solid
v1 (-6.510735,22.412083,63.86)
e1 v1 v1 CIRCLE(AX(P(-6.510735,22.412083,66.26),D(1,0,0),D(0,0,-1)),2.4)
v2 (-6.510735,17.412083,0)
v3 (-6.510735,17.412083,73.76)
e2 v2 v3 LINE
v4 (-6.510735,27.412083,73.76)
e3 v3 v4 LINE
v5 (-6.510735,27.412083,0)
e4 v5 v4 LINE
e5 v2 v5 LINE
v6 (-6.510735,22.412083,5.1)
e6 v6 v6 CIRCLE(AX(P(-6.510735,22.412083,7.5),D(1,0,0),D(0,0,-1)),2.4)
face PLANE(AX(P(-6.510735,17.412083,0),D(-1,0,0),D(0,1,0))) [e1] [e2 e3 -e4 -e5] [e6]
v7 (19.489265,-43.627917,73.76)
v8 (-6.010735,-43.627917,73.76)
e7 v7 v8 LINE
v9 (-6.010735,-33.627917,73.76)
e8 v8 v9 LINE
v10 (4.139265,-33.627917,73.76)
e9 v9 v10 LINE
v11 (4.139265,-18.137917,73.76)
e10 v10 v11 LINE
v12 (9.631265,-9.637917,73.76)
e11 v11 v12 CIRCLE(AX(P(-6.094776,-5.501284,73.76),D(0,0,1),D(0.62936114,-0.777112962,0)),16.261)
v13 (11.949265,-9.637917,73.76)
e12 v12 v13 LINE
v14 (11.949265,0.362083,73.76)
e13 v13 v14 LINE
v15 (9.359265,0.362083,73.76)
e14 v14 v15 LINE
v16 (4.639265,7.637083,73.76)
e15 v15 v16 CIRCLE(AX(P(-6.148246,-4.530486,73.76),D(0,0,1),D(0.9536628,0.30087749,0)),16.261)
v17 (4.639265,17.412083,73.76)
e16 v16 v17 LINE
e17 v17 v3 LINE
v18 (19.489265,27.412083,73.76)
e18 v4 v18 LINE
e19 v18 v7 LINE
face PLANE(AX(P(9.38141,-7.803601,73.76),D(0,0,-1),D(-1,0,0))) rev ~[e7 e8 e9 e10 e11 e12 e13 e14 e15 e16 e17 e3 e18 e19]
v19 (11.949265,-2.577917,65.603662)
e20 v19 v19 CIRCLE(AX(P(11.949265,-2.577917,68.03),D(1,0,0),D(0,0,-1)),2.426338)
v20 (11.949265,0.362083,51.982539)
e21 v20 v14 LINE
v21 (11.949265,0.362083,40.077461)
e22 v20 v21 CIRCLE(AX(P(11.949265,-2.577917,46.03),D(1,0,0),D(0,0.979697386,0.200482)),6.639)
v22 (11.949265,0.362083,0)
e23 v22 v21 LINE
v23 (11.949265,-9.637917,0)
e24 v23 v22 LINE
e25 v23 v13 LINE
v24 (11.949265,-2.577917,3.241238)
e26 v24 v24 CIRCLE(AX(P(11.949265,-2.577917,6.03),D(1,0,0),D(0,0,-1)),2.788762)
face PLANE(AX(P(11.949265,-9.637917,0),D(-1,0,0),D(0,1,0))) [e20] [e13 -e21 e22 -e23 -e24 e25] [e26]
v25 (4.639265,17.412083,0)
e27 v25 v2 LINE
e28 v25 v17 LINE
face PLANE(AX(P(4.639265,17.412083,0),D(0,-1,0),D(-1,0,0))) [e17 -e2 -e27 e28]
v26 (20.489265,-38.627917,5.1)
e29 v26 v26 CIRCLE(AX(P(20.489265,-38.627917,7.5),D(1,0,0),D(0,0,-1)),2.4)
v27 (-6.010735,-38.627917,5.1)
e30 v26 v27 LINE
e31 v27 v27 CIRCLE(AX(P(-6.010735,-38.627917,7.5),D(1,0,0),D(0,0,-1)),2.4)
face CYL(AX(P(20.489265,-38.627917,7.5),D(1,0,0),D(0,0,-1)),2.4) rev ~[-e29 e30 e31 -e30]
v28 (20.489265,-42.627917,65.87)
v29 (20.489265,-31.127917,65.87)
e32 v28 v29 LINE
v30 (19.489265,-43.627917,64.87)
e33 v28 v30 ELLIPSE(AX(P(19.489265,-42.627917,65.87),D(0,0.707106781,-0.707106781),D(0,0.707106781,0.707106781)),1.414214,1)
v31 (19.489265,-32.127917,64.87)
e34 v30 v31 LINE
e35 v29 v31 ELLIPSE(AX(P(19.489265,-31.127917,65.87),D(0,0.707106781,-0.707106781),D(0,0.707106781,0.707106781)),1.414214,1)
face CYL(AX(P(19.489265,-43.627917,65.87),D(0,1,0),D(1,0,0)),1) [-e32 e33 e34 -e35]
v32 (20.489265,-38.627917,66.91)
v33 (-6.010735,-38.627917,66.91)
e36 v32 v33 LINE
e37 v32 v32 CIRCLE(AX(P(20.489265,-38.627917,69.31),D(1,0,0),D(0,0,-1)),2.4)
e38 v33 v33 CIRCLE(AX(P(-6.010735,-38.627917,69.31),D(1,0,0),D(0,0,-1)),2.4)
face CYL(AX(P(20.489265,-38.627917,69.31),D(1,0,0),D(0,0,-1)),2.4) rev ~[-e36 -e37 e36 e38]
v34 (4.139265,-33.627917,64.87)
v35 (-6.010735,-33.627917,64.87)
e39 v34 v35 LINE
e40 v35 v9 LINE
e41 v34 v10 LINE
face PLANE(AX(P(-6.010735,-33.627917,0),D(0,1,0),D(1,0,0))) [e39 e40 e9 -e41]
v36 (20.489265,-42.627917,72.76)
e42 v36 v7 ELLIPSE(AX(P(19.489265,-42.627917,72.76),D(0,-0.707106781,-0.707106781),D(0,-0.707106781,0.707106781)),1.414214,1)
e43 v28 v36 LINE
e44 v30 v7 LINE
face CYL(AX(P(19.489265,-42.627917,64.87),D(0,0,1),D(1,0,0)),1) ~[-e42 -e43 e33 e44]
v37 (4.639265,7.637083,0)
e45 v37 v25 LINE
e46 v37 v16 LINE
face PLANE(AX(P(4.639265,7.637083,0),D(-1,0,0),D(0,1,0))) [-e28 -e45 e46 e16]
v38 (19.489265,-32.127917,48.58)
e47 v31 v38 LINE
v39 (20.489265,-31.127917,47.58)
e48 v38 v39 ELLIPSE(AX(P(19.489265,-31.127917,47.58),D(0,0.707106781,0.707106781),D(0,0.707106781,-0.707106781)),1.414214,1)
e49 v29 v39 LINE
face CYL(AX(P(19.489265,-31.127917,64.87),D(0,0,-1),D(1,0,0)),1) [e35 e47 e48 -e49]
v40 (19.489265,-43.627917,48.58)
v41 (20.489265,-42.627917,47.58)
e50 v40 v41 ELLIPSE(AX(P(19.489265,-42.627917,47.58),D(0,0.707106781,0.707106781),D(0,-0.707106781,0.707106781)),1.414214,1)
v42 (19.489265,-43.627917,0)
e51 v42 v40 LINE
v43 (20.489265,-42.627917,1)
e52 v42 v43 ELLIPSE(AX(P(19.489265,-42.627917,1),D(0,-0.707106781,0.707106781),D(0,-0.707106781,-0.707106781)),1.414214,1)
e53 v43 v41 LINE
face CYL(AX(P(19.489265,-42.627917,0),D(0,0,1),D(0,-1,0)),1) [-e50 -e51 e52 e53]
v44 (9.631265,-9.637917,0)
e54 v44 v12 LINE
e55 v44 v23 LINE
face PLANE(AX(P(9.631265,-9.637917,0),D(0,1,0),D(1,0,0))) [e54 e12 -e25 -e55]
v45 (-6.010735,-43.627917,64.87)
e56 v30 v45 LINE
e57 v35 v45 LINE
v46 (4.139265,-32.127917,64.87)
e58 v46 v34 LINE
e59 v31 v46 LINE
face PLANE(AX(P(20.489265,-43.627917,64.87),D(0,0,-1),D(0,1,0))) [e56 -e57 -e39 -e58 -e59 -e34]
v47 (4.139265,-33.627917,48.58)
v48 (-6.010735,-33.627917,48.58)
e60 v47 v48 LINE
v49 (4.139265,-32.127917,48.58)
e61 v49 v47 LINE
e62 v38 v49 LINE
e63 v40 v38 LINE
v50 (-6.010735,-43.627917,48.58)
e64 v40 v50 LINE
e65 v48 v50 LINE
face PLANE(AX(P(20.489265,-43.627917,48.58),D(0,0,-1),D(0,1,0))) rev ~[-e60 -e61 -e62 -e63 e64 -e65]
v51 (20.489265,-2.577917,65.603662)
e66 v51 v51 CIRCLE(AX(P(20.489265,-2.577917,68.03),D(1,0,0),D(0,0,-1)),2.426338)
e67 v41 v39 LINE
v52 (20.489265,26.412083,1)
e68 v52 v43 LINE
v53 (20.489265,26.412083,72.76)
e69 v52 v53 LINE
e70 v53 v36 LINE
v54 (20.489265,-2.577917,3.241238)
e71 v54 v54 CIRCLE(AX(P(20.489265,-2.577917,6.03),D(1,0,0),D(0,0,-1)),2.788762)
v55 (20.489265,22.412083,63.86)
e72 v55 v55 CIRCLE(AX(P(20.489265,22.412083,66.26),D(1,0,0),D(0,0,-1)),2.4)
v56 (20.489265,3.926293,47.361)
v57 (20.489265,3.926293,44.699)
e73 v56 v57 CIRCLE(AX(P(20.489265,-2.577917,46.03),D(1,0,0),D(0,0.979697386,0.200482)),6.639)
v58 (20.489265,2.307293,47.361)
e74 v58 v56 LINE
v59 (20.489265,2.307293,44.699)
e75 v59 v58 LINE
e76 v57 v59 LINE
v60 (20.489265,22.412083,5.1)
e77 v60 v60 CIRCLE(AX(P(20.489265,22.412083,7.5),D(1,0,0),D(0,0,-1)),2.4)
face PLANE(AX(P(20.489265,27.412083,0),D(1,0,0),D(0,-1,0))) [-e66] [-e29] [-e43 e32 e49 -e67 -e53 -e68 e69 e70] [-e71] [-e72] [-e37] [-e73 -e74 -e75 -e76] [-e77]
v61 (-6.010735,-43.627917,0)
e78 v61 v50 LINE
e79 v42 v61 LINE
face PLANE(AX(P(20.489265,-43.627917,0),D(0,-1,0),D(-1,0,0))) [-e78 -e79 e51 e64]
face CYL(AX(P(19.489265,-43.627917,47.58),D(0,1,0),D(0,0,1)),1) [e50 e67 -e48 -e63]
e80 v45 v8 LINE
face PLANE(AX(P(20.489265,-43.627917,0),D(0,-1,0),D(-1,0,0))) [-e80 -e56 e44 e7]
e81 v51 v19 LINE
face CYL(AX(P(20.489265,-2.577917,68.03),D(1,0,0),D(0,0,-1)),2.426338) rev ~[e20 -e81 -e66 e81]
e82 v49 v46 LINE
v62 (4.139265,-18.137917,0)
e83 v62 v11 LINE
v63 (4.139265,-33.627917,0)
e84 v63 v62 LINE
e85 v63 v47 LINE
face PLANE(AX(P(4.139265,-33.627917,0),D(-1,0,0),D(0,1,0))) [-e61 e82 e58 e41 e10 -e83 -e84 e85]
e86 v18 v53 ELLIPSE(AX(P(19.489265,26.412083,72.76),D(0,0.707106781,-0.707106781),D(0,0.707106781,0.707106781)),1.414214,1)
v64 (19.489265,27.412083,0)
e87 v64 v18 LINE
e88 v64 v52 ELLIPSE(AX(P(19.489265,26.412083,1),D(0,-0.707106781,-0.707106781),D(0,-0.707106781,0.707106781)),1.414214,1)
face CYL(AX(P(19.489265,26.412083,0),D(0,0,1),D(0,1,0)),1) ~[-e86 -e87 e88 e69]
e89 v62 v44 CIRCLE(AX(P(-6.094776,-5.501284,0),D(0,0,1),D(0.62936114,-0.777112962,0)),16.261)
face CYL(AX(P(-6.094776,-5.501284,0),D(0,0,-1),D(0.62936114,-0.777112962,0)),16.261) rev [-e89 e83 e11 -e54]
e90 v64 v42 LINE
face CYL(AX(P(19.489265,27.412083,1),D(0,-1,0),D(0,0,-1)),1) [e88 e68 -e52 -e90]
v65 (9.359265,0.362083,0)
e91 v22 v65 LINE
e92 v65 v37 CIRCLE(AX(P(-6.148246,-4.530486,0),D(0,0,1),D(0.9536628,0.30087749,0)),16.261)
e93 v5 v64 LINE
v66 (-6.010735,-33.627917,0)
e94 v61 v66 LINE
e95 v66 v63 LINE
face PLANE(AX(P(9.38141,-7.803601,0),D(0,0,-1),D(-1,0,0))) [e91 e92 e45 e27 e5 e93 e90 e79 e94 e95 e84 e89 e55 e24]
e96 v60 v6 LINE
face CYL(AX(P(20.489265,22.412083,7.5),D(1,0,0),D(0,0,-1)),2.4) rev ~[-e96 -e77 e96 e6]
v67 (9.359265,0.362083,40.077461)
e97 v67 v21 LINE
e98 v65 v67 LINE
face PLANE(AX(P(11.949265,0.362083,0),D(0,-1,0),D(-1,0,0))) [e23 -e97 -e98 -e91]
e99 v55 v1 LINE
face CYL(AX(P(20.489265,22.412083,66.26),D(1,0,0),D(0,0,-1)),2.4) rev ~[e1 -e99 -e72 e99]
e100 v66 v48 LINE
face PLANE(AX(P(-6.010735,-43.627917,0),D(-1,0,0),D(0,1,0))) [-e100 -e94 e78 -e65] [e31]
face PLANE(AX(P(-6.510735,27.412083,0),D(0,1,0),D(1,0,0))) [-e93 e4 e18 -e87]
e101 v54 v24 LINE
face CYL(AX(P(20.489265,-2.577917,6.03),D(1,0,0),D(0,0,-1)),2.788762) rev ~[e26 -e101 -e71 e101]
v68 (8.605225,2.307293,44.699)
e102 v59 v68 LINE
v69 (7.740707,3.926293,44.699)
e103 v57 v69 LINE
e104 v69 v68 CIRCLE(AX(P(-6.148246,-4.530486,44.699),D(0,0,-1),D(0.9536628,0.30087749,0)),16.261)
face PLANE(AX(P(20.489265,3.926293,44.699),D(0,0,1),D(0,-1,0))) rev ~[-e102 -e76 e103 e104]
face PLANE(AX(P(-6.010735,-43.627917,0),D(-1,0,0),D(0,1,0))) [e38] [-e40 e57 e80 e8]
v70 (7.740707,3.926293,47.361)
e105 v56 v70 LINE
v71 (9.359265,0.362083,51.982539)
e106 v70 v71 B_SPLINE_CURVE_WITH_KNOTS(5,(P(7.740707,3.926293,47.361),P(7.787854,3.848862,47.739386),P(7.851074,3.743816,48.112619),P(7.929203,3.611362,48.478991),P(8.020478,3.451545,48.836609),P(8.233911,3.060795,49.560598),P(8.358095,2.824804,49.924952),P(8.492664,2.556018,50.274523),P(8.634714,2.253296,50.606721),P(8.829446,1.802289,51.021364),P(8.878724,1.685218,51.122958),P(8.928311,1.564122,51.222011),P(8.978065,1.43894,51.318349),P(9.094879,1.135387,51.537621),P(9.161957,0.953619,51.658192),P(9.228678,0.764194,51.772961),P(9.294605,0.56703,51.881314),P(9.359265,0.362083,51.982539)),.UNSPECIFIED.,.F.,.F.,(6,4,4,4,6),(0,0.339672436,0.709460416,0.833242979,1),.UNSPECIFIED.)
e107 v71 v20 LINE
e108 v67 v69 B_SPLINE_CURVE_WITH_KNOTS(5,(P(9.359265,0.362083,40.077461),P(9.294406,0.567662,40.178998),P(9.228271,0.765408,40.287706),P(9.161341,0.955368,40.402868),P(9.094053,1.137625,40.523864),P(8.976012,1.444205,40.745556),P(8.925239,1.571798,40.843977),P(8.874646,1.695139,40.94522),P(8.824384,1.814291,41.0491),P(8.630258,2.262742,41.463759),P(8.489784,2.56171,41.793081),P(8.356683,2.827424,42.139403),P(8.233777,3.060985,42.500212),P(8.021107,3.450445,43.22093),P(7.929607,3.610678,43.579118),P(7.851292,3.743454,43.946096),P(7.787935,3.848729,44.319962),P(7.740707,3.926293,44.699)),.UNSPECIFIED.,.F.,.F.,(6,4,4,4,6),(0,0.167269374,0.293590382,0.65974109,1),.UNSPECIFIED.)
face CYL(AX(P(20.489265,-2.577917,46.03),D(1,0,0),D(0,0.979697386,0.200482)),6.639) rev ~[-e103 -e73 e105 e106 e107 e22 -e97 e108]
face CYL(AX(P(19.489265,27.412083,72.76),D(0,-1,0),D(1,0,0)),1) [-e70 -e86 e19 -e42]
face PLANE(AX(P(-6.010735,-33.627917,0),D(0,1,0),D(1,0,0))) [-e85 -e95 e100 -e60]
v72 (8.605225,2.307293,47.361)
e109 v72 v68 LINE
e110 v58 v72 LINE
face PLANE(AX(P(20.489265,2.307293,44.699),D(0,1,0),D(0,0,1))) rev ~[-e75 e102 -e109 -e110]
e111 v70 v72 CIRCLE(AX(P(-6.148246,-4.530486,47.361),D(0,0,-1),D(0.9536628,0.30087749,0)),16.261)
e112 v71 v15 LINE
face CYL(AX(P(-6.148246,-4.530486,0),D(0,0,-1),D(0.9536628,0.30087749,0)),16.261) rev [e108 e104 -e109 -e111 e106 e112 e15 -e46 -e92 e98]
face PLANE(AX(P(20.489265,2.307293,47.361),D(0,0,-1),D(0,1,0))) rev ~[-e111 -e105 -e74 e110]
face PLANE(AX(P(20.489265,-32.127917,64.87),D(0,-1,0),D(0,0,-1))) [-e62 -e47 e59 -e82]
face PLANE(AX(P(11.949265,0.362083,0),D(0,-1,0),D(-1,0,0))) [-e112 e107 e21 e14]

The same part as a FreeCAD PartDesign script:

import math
import FreeCAD as App
import Part
import Sketcher

V = App.Vector
Q = App.Units.Quantity


def edges_at(feature, points):
    """Names of the edges that pass closest to the given points."""
    edges = feature.Shape.Edges
    near = lambda p: min(range(len(edges)), key=lambda i: edges[i].distToShape(Part.Vertex(*p))[0])
    return sorted({f"Edge{near(p) + 1}" for p in points})


def add_polygon(sketch, points):
    """Adds a closed chain of lines whose ends are joined by coincident constraints."""
    first, n = sketch.GeometryCount, len(points)
    for a, b in zip(points, points[1:] + points[:1]):
        sketch.addGeometry(Part.LineSegment(App.Vector(*a, 0), App.Vector(*b, 0)), False)
    for i in range(n):
        sketch.addConstraint(Sketcher.Constraint("Coincident", first + i, 2, first + (i + 1) % n, 1))

doc = App.newDocument("Part")
params = doc.addObject("Spreadsheet::Sheet", "Params")
for row, (alias, value) in enumerate([
    ("sketch1_width", "27 mm"),
    ("sketch1_height", "10 mm"),
    ("sketch1_width2", "26.5 mm"),
    ("sketch1_width3", "11.15 mm"),
    ("sketch1_width4", "2.59 mm"),
    ("pad1_length", "73.76 mm"),
    ("sketch2_width", "11.5 mm"),
    ("sketch2_height", "16.29 mm"),
    ("sketch3_diameter", "4.8 mm"),
    ("fillet_radius", "1 mm"),
], start=1):
    params.set(f"A{row}", alias)
    params.set(f"B{row}", "=" + value)
    params.setAlias(f"B{row}", alias)

body = doc.addObject("PartDesign::Body", "Body")

# Sketch on XY plane
sketch1 = body.newObject("Sketcher::SketchObject", "Sketch")
sketch1.AttachmentSupport = (doc.getObject("XY_Plane"), [""])
sketch1.MapMode = "FlatFace"
sketch1.addGeometry([
    Part.LineSegment(V(-6, -33.6, 0), V(-6, -43.6, 0)),  # 0
    Part.LineSegment(V(-6, -43.6, 0), V(20.5, -43.6, 0)),  # 1
    Part.LineSegment(V(20.5, -43.6, 0), V(20.5, 27.4, 0)),  # 2
    Part.LineSegment(V(20.5, 27.4, 0), V(-6.5, 27.4, 0)),  # 3
    Part.LineSegment(V(-6.5, 27.4, 0), V(-6.5, 17.4, 0)),  # 4
    Part.LineSegment(V(-6.5, 17.4, 0), V(4.6, 17.4, 0)),  # 5
    Part.LineSegment(V(4.6, 17.4, 0), V(4.6, 7.6, 0)),  # 6
    Part.ArcOfCircle(Part.Circle(V(-6.1, -4.5, 0), V(0, 0, 1), 16.3), math.radians(18), math.radians(48)),  # 7
    Part.LineSegment(V(9.4, 0.4, 0), V(11.9, 0.4, 0)),  # 8
    Part.LineSegment(V(11.9, 0.4, 0), V(11.9, -9.6, 0)),  # 9
    Part.LineSegment(V(11.9, -9.6, 0), V(9.6, -9.6, 0)),  # 10
    Part.ArcOfCircle(Part.Circle(V(-6.1, -5.5, 0), V(0, 0, 1), 16.3), math.radians(-51), math.radians(-15)),  # 11
    Part.LineSegment(V(4.1, -18.1, 0), V(4.1, -33.6, 0)),  # 12
    Part.LineSegment(V(4.1, -33.6, 0), V(-6, -33.6, 0)),  # 13
], False)
sketch1.addConstraint([
    Sketcher.Constraint("Coincident", 0, 2, 1, 1),
    Sketcher.Constraint("Coincident", 1, 2, 2, 1),
    Sketcher.Constraint("Coincident", 2, 2, 3, 1),
    Sketcher.Constraint("Coincident", 3, 2, 4, 1),
    Sketcher.Constraint("Coincident", 4, 2, 5, 1),
    Sketcher.Constraint("Coincident", 5, 2, 6, 1),
    Sketcher.Constraint("Coincident", 6, 2, 7, 2),
    Sketcher.Constraint("Coincident", 7, 1, 8, 1),
    Sketcher.Constraint("Coincident", 8, 2, 9, 1),
    Sketcher.Constraint("Coincident", 9, 2, 10, 1),
    Sketcher.Constraint("Coincident", 10, 2, 11, 2),
    Sketcher.Constraint("Coincident", 11, 1, 12, 1),
    Sketcher.Constraint("Coincident", 12, 2, 13, 1),
    Sketcher.Constraint("Coincident", 13, 2, 0, 1),
    Sketcher.Constraint("Vertical", 0),
    Sketcher.Constraint("Horizontal", 1),
    Sketcher.Constraint("Vertical", 2),
    Sketcher.Constraint("Horizontal", 3),
    Sketcher.Constraint("Vertical", 4),
    Sketcher.Constraint("Horizontal", 5),
    Sketcher.Constraint("Vertical", 6),
    Sketcher.Constraint("Horizontal", 8),
    Sketcher.Constraint("Vertical", 9),
    Sketcher.Constraint("Horizontal", 10),
    Sketcher.Constraint("Vertical", 12),
    Sketcher.Constraint("Horizontal", 13),
    Sketcher.Constraint("Equal", 7, 11),
    Sketcher.Constraint("Equal", 0, 4),
    Sketcher.Constraint("Equal", 4, 9),
    Sketcher.Constraint("DistanceX", 3, 2, 3, 1, Q("27 mm")),
    Sketcher.Constraint("DistanceY", 0, 2, 0, 1, Q("10 mm")),
    Sketcher.Constraint("DistanceX", 1, 1, 1, 2, Q("26.5 mm")),
    Sketcher.Constraint("Radius", 7, Q("16.261 mm")),
    Sketcher.Constraint("DistanceX", 5, 1, 5, 2, Q("11.15 mm")),
    Sketcher.Constraint("DistanceX", 8, 1, 8, 2, Q("2.59 mm")),
    Sketcher.Constraint("DistanceX", 13, 2, 13, 1, Q("10.15 mm")),
    Sketcher.Constraint("DistanceY", 2, 1, 2, 2, Q("71.04 mm")),
    Sketcher.Constraint("DistanceY", 12, 2, 12, 1, Q("15.49 mm")),
    Sketcher.Constraint("DistanceY", 11, 1, 10, 2, Q("8.5 mm")),
    Sketcher.Constraint("DistanceX", 10, 2, 10, 1, Q("2.318 mm")),
    Sketcher.Constraint("DistanceY", 6, 2, 6, 1, Q("9.775 mm")),
    Sketcher.Constraint("DistanceX", 6, 2, 7, 1, Q("4.72 mm")),
    Sketcher.Constraint("DistanceX", 7, 3, -1, 1, Q("6.148246 mm")),
    Sketcher.Constraint("DistanceY", 7, 3, -1, 1, Q("4.530486 mm")),
])
sketch1.setExpression("Constraints[29]", "Params.sketch1_width")
sketch1.setExpression("Constraints[30]", "Params.sketch1_height")
sketch1.setExpression("Constraints[31]", "Params.sketch1_width2")
sketch1.setExpression("Constraints[33]", "Params.sketch1_width3")
sketch1.setExpression("Constraints[34]", "Params.sketch1_width4")
pad1 = body.newObject("PartDesign::Pad", "Pad")
pad1.Profile = sketch1
pad1.setExpression("Length", "Params.pad1_length")

# Sketch on YZ plane
sketch2 = body.newObject("Sketcher::SketchObject", "Sketch001")
sketch2.AttachmentSupport = (doc.getObject("YZ_Plane"), [""])
sketch2.MapMode = "FlatFace"
sketch2.AttachmentOffset = App.Placement(V(0, 0, 20.489265), App.Rotation())
add_polygon(sketch2, [(-32, 65), (-44, 65), (-44, 49), (-32, 49)])  # lines 0-3
sketch2.addConstraint([
    Sketcher.Constraint("Horizontal", 0),
    Sketcher.Constraint("Vertical", 1),
    Sketcher.Constraint("Horizontal", 2),
    Sketcher.Constraint("Vertical", 3),
    Sketcher.Constraint("DistanceX", 0, 2, 0, 1, Q("11.5 mm")),
    Sketcher.Constraint("DistanceY", 1, 2, 1, 1, Q("16.29 mm")),
    Sketcher.Constraint("DistanceY", -1, 1, 0, 2, Q("64.87 mm")),
    Sketcher.Constraint("DistanceX", 0, 2, -1, 1, Q("43.627917 mm")),
])
sketch2.setExpression("Constraints[8]", "Params.sketch2_width")
sketch2.setExpression("Constraints[9]", "Params.sketch2_height")
pocket1 = body.newObject("PartDesign::Pocket", "Pocket")
pocket1.Profile = sketch2
pocket1.Type = "ThroughAll"

# Sketch on YZ plane
sketch3 = body.newObject("Sketcher::SketchObject", "Sketch002")
sketch3.AttachmentSupport = (doc.getObject("YZ_Plane"), [""])
sketch3.MapMode = "FlatFace"
sketch3.AttachmentOffset = App.Placement(V(0, 0, 20.489265), App.Rotation())
sketch3.addGeometry([
    Part.Circle(V(22.4, 66.3, 0), V(0, 0, 1), 2.4),
    Part.Circle(V(22.4, 7.5, 0), V(0, 0, 1), 2.4),
    Part.Circle(V(-38.6, 7.5, 0), V(0, 0, 1), 2.4),
    Part.Circle(V(-38.6, 69.3, 0), V(0, 0, 1), 2.4),
], False)
sketch3.addConstraint([
    Sketcher.Constraint("Equal", 0, 1),
    Sketcher.Constraint("Equal", 1, 2),
    Sketcher.Constraint("Equal", 2, 3),
    Sketcher.Constraint("Horizontal", 1, 3, 2, 3),
    Sketcher.Constraint("Vertical", 0, 3, 1, 3),
    Sketcher.Constraint("Vertical", 2, 3, 3, 3),
    Sketcher.Constraint("Diameter", 0, Q("4.8 mm")),
    Sketcher.Constraint("DistanceY", -1, 1, 1, 3, Q("7.5 mm")),
    Sketcher.Constraint("DistanceY", -1, 1, 0, 3, Q("66.26 mm")),
    Sketcher.Constraint("DistanceY", -1, 1, 3, 3, Q("69.31 mm")),
    Sketcher.Constraint("DistanceX", 2, 3, 1, 3, Q("61.04 mm")),
    Sketcher.Constraint("DistanceX", -1, 1, 0, 3, Q("22.412083 mm")),
])
sketch3.setExpression("Constraints[6]", "Params.sketch3_diameter")
pocket2 = body.newObject("PartDesign::Pocket", "Pocket001")
pocket2.Profile = sketch3
pocket2.Type = "ThroughAll"

# Sketch on YZ plane
sketch4 = body.newObject("Sketcher::SketchObject", "Sketch003")
sketch4.AttachmentSupport = (doc.getObject("YZ_Plane"), [""])
sketch4.MapMode = "FlatFace"
sketch4.AttachmentOffset = App.Placement(V(0, 0, 20.489265), App.Rotation())
sketch4.addGeometry([
    Part.LineSegment(V(2.3, 44.7, 0), V(2.3, 47.4, 0)),
    Part.LineSegment(V(2.3, 47.4, 0), V(3.9, 47.4, 0)),
    Part.ArcOfCircle(Part.Circle(V(-2.6, 46, 0), V(0, 0, 1), 6.6), math.radians(12), math.radians(348)),
    Part.LineSegment(V(3.9, 44.7, 0), V(2.3, 44.7, 0)),
], False)
sketch4.addConstraint([
    Sketcher.Constraint("Coincident", 0, 2, 1, 1),
    Sketcher.Constraint("Coincident", 1, 2, 2, 1),
    Sketcher.Constraint("Coincident", 2, 2, 3, 1),
    Sketcher.Constraint("Coincident", 3, 2, 0, 1),
    Sketcher.Constraint("Vertical", 0),
    Sketcher.Constraint("Horizontal", 1),
    Sketcher.Constraint("Horizontal", 3),
    Sketcher.Constraint("Vertical", 1, 2, 2, 2),
    Sketcher.Constraint("Radius", 2, Q("6.639 mm")),
    Sketcher.Constraint("DistanceX", 1, 1, 1, 2, Q("1.619 mm")),
    Sketcher.Constraint("DistanceY", 0, 1, 0, 2, Q("2.662 mm")),
    Sketcher.Constraint("DistanceY", -1, 1, 2, 3, Q("46.03 mm")),
    Sketcher.Constraint("DistanceX", 2, 3, -1, 1, Q("2.577917 mm")),
])
pocket3 = body.newObject("PartDesign::Pocket", "Pocket002")
pocket3.Profile = sketch4
pocket3.Type = "ThroughAll"

# Sketch on YZ plane
sketch5 = body.newObject("Sketcher::SketchObject", "Sketch004")
sketch5.AttachmentSupport = (doc.getObject("YZ_Plane"), [""])
sketch5.MapMode = "FlatFace"
sketch5.AttachmentOffset = App.Placement(V(0, 0, 20.489265), App.Rotation())
sketch5.addGeometry([
    Part.Circle(V(-2.6, 68, 0), V(0, 0, 1), 2.4),
    Part.Circle(V(-2.6, 6, 0), V(0, 0, 1), 2.8),
], False)
sketch5.addConstraint([
    Sketcher.Constraint("Vertical", 0, 3, 1, 3),
    Sketcher.Constraint("DistanceY", 1, 3, 0, 3, Q("62 mm")),
    Sketcher.Constraint("DistanceY", -1, 1, 0, 3, Q("68.03 mm")),
    Sketcher.Constraint("Diameter", 0, Q("4.852676 mm")),
    Sketcher.Constraint("Diameter", 1, Q("5.577525 mm")),
    Sketcher.Constraint("DistanceX", 0, 3, -1, 1, Q("2.577917 mm")),
])
pocket4 = body.newObject("PartDesign::Pocket", "Pocket003")
pocket4.Profile = sketch5
pocket4.Type = "ThroughAll"
doc.recompute()

fillet = body.newObject("PartDesign::Fillet", "Fillet")
fillet.Base = (pocket4, edges_at(pocket4, [
    (20.489, -8.108, 0),
    (20.489, -43.628, 69.315),
    (20.489, 27.412, 36.88),
    (20.489, -8.108, 73.76),
    (20.489, -43.628, 24.29),
    (20.489, -37.878, 64.87),
    (20.489, -37.878, 48.58),
    (20.489, -32.128, 56.725),
]))
fillet.setExpression("Radius", "Params.fillet_radius")

doc.recompute()
